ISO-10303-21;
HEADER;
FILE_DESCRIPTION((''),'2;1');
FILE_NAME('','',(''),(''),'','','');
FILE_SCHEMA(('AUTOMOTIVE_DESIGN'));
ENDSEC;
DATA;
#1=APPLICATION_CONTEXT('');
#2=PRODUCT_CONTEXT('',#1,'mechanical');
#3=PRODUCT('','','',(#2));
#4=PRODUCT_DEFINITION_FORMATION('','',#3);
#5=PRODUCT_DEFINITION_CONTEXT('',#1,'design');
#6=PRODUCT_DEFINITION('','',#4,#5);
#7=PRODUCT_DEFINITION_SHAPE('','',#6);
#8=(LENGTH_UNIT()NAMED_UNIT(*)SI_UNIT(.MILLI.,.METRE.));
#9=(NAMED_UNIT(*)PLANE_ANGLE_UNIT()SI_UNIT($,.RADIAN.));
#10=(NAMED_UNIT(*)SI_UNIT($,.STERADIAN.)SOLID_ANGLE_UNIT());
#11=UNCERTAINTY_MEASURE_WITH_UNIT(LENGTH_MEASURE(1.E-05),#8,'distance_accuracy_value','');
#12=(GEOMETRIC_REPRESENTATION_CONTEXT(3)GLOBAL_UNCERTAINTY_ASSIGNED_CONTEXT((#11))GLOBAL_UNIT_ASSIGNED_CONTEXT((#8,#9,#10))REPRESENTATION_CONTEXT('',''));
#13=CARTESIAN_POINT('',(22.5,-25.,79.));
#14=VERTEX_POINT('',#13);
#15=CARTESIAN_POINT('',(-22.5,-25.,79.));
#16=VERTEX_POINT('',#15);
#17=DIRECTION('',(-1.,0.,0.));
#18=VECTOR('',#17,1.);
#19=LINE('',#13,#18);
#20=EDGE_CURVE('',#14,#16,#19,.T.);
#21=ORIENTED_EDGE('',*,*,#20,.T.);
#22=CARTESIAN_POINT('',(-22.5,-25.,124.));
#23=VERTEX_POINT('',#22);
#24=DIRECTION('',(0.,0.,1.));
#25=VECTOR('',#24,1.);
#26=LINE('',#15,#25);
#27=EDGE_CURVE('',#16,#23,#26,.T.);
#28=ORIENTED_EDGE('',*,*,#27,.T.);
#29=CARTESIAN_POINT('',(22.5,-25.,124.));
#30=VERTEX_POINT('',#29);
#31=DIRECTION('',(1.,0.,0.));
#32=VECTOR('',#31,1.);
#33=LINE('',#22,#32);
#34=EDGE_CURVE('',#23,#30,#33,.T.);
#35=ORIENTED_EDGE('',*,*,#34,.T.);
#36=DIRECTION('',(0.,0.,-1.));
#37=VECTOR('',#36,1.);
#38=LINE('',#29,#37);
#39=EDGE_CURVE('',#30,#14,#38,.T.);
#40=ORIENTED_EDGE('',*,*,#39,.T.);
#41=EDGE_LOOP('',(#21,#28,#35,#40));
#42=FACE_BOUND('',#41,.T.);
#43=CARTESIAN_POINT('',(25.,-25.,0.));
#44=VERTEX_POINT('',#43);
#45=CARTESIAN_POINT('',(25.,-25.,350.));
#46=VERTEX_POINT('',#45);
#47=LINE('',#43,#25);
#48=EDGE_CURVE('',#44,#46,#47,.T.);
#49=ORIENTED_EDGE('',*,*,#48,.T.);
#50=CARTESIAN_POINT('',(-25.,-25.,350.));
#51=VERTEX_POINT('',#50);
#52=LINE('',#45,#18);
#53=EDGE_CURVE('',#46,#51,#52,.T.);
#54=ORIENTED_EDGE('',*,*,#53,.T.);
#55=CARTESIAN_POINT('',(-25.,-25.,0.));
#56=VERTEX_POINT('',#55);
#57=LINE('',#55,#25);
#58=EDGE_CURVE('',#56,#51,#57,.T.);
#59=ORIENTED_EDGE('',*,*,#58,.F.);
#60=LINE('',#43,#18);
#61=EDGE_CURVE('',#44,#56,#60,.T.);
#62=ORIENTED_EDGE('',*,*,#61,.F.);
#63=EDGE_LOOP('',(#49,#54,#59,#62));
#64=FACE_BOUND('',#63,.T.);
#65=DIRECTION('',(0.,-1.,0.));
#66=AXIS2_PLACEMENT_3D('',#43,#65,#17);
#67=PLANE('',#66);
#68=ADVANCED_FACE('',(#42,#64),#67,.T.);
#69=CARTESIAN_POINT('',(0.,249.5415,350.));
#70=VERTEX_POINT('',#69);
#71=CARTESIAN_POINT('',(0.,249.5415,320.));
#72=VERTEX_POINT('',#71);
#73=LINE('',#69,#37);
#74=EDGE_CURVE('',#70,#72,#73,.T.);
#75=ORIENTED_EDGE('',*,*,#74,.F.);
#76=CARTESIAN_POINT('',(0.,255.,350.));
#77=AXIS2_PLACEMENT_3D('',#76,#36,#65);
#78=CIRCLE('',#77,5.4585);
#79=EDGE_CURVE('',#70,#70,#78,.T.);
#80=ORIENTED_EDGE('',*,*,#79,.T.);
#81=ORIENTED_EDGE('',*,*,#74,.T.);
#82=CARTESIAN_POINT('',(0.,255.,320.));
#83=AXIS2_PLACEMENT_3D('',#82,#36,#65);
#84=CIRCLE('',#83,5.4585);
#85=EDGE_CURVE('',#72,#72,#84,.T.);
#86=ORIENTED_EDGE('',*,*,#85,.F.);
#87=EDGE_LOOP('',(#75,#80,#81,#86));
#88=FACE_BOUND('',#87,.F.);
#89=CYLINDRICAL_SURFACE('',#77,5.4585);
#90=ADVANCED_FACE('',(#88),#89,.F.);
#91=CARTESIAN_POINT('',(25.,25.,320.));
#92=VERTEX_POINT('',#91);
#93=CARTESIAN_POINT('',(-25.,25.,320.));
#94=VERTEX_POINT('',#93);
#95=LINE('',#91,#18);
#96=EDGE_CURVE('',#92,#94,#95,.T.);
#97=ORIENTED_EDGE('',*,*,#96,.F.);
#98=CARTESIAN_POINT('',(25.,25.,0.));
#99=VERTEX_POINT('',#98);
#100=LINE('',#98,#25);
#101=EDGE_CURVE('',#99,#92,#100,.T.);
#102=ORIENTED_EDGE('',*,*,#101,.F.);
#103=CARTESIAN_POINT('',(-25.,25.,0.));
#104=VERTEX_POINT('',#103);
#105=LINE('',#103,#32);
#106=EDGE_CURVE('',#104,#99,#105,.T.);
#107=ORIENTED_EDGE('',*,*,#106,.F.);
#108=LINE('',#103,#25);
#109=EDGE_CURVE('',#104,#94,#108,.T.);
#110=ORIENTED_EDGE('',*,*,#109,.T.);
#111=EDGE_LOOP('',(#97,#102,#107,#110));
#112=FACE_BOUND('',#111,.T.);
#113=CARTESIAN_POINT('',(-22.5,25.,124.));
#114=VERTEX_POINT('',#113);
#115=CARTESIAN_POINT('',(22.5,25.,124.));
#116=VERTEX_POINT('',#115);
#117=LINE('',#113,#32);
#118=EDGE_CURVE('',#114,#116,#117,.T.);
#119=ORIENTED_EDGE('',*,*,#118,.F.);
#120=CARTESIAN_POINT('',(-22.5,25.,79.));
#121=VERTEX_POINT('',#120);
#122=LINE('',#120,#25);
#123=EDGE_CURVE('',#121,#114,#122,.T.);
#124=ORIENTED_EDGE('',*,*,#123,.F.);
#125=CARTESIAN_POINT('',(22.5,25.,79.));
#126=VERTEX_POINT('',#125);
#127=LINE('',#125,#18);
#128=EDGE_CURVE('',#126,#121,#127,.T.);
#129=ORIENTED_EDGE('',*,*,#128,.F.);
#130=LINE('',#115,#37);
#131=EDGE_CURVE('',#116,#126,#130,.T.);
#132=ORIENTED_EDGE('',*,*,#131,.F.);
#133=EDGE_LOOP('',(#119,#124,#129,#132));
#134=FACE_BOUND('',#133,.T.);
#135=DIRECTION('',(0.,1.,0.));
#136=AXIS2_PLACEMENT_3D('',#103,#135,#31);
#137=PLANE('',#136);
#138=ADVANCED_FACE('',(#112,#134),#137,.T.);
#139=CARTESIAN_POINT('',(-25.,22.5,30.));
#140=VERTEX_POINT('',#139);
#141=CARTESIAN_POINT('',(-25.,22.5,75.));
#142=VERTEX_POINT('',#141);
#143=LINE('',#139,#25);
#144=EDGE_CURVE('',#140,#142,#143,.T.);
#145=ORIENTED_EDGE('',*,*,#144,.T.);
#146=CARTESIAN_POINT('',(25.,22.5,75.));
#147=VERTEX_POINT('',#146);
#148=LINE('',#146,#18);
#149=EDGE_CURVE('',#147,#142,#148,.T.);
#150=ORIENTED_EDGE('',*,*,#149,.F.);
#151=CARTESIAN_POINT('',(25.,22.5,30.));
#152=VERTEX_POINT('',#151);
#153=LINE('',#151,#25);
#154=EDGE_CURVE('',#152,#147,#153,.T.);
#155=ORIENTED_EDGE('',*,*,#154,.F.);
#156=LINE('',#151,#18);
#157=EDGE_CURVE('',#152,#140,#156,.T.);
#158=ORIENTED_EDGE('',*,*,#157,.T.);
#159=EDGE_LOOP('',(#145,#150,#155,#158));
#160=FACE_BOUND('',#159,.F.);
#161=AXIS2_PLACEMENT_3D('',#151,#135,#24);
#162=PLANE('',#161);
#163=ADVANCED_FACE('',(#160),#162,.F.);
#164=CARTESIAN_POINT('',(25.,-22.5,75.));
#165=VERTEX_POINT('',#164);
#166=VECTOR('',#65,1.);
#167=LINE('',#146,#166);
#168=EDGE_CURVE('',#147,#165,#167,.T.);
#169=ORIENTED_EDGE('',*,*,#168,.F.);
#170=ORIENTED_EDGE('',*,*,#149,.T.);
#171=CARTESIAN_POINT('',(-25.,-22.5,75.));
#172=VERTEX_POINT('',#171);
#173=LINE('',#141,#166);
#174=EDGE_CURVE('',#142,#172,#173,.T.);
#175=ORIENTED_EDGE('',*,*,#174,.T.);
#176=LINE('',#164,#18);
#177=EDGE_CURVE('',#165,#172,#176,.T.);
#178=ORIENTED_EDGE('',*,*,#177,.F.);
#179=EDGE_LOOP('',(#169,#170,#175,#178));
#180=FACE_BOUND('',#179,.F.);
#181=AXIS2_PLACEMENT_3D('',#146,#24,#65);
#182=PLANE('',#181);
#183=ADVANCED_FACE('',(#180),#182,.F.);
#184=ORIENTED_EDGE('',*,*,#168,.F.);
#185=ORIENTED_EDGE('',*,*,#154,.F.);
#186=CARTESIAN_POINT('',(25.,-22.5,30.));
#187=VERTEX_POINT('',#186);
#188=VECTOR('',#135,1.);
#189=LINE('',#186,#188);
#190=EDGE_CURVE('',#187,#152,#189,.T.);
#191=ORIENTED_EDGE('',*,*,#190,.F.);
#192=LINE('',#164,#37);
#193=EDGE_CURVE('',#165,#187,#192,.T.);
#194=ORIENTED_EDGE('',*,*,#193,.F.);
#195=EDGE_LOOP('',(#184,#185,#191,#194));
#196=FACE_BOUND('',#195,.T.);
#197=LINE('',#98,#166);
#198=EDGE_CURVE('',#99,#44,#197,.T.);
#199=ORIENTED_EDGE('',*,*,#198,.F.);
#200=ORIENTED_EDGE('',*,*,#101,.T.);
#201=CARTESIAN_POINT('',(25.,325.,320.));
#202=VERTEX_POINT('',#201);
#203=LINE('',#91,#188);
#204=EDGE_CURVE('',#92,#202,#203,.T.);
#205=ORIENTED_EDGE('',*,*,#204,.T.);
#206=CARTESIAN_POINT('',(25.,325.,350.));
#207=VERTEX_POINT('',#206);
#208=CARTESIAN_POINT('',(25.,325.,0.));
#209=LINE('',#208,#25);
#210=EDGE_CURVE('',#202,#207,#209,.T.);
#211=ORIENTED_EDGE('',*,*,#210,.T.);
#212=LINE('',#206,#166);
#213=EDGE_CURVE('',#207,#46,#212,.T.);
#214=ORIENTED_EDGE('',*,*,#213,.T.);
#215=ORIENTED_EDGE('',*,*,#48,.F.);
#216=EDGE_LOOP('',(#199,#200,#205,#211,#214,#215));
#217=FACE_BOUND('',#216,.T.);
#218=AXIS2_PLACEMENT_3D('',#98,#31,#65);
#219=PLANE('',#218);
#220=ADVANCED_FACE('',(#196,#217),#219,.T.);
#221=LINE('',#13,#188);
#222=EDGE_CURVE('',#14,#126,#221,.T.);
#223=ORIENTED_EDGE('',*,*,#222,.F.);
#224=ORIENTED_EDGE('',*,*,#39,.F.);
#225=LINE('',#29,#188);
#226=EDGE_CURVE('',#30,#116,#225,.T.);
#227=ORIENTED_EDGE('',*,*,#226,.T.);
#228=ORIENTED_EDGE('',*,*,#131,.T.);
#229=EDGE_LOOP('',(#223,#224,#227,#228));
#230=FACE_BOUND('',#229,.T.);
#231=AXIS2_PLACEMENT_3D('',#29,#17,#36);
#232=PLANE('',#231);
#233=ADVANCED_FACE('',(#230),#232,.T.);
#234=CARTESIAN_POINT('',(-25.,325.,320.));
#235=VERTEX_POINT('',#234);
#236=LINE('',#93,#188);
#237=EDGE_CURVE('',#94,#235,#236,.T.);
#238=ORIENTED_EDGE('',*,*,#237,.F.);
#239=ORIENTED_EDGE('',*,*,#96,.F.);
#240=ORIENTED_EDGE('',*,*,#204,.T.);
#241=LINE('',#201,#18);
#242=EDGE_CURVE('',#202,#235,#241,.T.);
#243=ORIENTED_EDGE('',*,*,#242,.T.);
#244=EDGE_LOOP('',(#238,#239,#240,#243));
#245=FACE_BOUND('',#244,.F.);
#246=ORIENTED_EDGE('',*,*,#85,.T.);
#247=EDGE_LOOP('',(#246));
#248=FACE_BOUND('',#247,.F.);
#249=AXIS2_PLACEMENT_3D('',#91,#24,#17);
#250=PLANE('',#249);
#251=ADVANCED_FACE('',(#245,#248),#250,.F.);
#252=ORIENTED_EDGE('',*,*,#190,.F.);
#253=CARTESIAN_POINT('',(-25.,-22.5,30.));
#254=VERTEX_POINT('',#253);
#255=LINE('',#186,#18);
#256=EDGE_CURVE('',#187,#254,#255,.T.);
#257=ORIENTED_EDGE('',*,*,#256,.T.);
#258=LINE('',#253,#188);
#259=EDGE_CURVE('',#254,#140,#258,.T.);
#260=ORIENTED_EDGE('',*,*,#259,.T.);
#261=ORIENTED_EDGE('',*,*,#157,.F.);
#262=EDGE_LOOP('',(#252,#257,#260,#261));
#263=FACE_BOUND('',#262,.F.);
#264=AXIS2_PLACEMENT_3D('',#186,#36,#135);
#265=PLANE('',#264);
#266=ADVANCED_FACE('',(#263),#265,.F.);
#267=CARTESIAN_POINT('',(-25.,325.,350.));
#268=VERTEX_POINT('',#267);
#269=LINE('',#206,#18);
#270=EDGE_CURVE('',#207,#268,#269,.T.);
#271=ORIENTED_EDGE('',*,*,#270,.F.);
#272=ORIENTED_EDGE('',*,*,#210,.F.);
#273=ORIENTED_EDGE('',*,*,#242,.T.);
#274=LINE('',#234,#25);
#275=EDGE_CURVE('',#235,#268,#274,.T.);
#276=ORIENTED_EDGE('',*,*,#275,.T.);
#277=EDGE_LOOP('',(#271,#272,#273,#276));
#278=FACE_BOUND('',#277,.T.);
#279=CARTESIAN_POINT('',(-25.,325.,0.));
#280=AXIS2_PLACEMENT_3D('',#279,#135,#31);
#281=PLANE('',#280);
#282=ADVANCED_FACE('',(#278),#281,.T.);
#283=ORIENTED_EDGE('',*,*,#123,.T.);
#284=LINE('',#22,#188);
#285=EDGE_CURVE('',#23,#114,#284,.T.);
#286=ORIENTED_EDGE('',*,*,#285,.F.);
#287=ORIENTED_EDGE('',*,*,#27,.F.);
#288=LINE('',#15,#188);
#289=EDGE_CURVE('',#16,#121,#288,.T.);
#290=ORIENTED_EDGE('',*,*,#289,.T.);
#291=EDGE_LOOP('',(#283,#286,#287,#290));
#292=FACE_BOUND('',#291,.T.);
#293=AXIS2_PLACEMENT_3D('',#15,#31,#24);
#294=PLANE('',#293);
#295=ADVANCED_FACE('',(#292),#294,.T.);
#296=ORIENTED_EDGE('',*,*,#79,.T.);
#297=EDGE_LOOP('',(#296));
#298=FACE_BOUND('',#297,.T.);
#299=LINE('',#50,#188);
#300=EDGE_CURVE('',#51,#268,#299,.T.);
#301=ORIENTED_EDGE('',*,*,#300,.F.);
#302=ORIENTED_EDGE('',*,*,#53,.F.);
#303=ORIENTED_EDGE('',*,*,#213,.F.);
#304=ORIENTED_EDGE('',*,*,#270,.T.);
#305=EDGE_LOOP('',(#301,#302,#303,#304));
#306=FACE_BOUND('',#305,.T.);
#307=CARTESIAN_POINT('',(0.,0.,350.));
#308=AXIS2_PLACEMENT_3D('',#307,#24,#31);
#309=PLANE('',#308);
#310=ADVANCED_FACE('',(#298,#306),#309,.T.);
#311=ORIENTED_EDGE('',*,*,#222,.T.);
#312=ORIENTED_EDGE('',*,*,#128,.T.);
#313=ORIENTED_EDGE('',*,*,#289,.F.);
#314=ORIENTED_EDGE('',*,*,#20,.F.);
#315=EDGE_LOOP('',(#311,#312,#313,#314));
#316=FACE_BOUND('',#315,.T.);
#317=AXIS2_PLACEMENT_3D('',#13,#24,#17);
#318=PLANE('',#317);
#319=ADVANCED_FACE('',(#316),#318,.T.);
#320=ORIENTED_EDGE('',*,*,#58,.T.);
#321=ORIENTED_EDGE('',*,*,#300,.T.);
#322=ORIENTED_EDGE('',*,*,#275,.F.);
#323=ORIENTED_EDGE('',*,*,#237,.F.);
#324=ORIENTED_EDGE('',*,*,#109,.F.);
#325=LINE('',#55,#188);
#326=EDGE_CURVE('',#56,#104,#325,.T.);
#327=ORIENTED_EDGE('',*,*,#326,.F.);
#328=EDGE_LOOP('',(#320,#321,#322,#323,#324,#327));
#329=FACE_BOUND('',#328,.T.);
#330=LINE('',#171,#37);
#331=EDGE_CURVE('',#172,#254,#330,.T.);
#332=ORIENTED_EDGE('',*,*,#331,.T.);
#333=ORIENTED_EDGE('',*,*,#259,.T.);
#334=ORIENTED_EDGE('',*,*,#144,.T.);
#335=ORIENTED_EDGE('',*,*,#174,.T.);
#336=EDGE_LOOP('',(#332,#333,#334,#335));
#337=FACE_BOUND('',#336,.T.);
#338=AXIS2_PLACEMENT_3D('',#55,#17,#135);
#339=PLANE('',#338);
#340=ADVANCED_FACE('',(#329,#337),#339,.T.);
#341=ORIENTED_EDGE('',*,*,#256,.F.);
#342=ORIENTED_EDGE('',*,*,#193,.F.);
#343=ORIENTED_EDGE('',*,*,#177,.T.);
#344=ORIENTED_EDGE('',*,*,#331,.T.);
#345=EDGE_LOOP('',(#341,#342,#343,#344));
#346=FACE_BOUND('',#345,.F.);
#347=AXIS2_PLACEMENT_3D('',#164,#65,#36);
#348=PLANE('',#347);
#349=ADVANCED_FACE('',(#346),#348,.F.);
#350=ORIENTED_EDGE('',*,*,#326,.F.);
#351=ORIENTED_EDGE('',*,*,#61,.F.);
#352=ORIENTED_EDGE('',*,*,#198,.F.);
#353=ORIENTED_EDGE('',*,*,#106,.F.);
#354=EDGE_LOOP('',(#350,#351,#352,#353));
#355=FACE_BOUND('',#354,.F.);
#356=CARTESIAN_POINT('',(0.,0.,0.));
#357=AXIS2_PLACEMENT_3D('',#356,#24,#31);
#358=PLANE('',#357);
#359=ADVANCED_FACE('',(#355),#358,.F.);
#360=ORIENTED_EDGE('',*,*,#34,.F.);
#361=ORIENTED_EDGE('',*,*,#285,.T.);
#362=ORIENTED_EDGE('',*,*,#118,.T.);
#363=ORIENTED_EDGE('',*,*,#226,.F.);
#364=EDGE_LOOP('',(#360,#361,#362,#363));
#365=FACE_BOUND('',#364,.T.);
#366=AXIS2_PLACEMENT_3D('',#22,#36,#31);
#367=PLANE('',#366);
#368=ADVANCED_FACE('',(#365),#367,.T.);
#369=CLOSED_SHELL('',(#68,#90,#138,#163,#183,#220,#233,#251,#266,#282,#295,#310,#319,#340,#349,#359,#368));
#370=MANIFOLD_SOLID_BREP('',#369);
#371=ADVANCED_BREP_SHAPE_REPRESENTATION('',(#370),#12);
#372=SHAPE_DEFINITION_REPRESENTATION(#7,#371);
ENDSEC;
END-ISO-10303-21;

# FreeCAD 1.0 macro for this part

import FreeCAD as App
import Part
import Sketcher
Q = App.Units.Quantity

doc = App.newDocument("Part")
body = doc.addObject("PartDesign::Body", "Body")

# Sketch on XY plane
sketch1 = body.newObject("Sketcher::SketchObject", "Sketch")
sketch1.AttachmentSupport = (doc.getObject("XY_Plane"), [""])
sketch1.MapMode = "FlatFace"
sketch1.addGeometry(Part.LineSegment(App.Vector(25, 25, 0), App.Vector(-25, 25, 0)), False)
sketch1.addGeometry(Part.LineSegment(App.Vector(-25, 25, 0), App.Vector(-25, -25, 0)), False)
sketch1.addGeometry(Part.LineSegment(App.Vector(-25, -25, 0), App.Vector(25, -25, 0)), False)
sketch1.addGeometry(Part.LineSegment(App.Vector(25, -25, 0), App.Vector(25, 25, 0)), False)
sketch1.addConstraint(Sketcher.Constraint("Coincident", 0, 2, 1, 1))
sketch1.addConstraint(Sketcher.Constraint("Coincident", 1, 2, 2, 1))
sketch1.addConstraint(Sketcher.Constraint("Coincident", 2, 2, 3, 1))
sketch1.addConstraint(Sketcher.Constraint("Coincident", 3, 2, 0, 1))
sketch1.addConstraint(Sketcher.Constraint("Horizontal", 0))
sketch1.addConstraint(Sketcher.Constraint("Vertical", 1))
sketch1.addConstraint(Sketcher.Constraint("Horizontal", 2))
sketch1.addConstraint(Sketcher.Constraint("Vertical", 3))
sketch1.addConstraint(Sketcher.Constraint("Symmetric", 0, 2, 2, 2, -1, 1))
sketch1.addConstraint(Sketcher.Constraint("Equal", 2, 1))
sketch1.addConstraint(Sketcher.Constraint("DistanceX", 0, 2, 0, 1, Q("50 mm")))
pad1 = body.newObject("PartDesign::Pad", "Pad")
pad1.Profile = sketch1
pad1.Length = 350

# Sketch on XZ plane
sketch2 = body.newObject("Sketcher::SketchObject", "Sketch001")
sketch2.AttachmentSupport = (doc.getObject("XZ_Plane"), [""])
sketch2.MapMode = "FlatFace"
sketch2.AttachmentOffset = App.Placement(App.Vector(0, 0, -25), App.Rotation())
sketch2.addGeometry(Part.LineSegment(App.Vector(-25, 350, 0), App.Vector(25, 350, 0)), False)
sketch2.addGeometry(Part.LineSegment(App.Vector(25, 350, 0), App.Vector(25, 320, 0)), False)
sketch2.addGeometry(Part.LineSegment(App.Vector(25, 320, 0), App.Vector(-25, 320, 0)), False)
sketch2.addGeometry(Part.LineSegment(App.Vector(-25, 320, 0), App.Vector(-25, 350, 0)), False)
sketch2.addConstraint(Sketcher.Constraint("Coincident", 0, 2, 1, 1))
sketch2.addConstraint(Sketcher.Constraint("Coincident", 1, 2, 2, 1))
sketch2.addConstraint(Sketcher.Constraint("Coincident", 2, 2, 3, 1))
sketch2.addConstraint(Sketcher.Constraint("Coincident", 3, 2, 0, 1))
sketch2.addConstraint(Sketcher.Constraint("Horizontal", 0))
sketch2.addConstraint(Sketcher.Constraint("Vertical", 1))
sketch2.addConstraint(Sketcher.Constraint("Horizontal", 2))
sketch2.addConstraint(Sketcher.Constraint("Vertical", 3))
sketch2.addConstraint(Sketcher.Constraint("DistanceY", 1, 2, 1, 1, Q("30 mm")))
sketch2.addConstraint(Sketcher.Constraint("DistanceX", 0, 1, 0, 2, Q("50 mm")))
sketch2.addConstraint(Sketcher.Constraint("DistanceX", -1, 1, 0, 2, Q("25 mm")))
sketch2.addConstraint(Sketcher.Constraint("DistanceY", -1, 1, 0, 2, Q("350 mm")))
pad2 = body.newObject("PartDesign::Pad", "Pad001")
pad2.Profile = sketch2
pad2.Length = 300
pad2.Reversed = True

# Sketch on XY plane
sketch3 = body.newObject("Sketcher::SketchObject", "Sketch002")
sketch3.AttachmentSupport = (doc.getObject("XY_Plane"), [""])
sketch3.MapMode = "FlatFace"
sketch3.AttachmentOffset = App.Placement(App.Vector(0, 0, 350), App.Rotation())
sketch3.addGeometry(Part.Circle(App.Vector(0, 255, 0), App.Vector(0, 0, 1), 5), False)
sketch3.addConstraint(Sketcher.Constraint("PointOnObject", 0, 3, -2))
sketch3.addConstraint(Sketcher.Constraint("Diameter", 0, Q("10.917 mm")))
sketch3.addConstraint(Sketcher.Constraint("DistanceY", -1, 1, 0, 3, Q("255 mm")))
doc.recompute()
hole = body.newObject("PartDesign::Hole", "Hole")
hole.Profile = sketch3
hole.ThreadType = "None"
hole.Diameter = 10.917
hole.DepthType = "ThroughAll"

# Sketch on YZ plane
sketch4 = body.newObject("Sketcher::SketchObject", "Sketch003")
sketch4.AttachmentSupport = (doc.getObject("YZ_Plane"), [""])
sketch4.MapMode = "FlatFace"
sketch4.AttachmentOffset = App.Placement(App.Vector(0, 0, 25), App.Rotation())
sketch4.addGeometry(Part.LineSegment(App.Vector(22, 75, 0), App.Vector(-22, 75, 0)), False)
sketch4.addGeometry(Part.LineSegment(App.Vector(-22, 75, 0), App.Vector(-22, 30, 0)), False)
sketch4.addGeometry(Part.LineSegment(App.Vector(-22, 30, 0), App.Vector(22, 30, 0)), False)
sketch4.addGeometry(Part.LineSegment(App.Vector(22, 30, 0), App.Vector(22, 75, 0)), False)
sketch4.addConstraint(Sketcher.Constraint("Coincident", 0, 2, 1, 1))
sketch4.addConstraint(Sketcher.Constraint("Coincident", 1, 2, 2, 1))
sketch4.addConstraint(Sketcher.Constraint("Coincident", 2, 2, 3, 1))
sketch4.addConstraint(Sketcher.Constraint("Coincident", 3, 2, 0, 1))
sketch4.addConstraint(Sketcher.Constraint("Horizontal", 0))
sketch4.addConstraint(Sketcher.Constraint("Vertical", 1))
sketch4.addConstraint(Sketcher.Constraint("Horizontal", 2))
sketch4.addConstraint(Sketcher.Constraint("Vertical", 3))
sketch4.addConstraint(Sketcher.Constraint("Equal", 2, 1))
sketch4.addConstraint(Sketcher.Constraint("DistanceX", 0, 2, 0, 1, Q("45 mm")))
sketch4.addConstraint(Sketcher.Constraint("DistanceY", -1, 1, 1, 2, Q("30 mm")))
sketch4.addConstraint(Sketcher.Constraint("DistanceX", 0, 2, -1, 1, Q("22.5 mm")))
pocket1 = body.newObject("PartDesign::Pocket", "Pocket")
pocket1.Profile = sketch4
pocket1.Length = 50

# Sketch on XZ plane
sketch5 = body.newObject("Sketcher::SketchObject", "Sketch004")
sketch5.AttachmentSupport = (doc.getObject("XZ_Plane"), [""])
sketch5.MapMode = "FlatFace"
sketch5.AttachmentOffset = App.Placement(App.Vector(0, 0, 25), App.Rotation())
sketch5.addGeometry(Part.Circle(App.Vector(0, 102, 0), App.Vector(0, 0, 1), 6), False)
sketch5.addConstraint(Sketcher.Constraint("PointOnObject", 0, 3, -2))
sketch5.addConstraint(Sketcher.Constraint("Diameter", 0, Q("11.835 mm")))
sketch5.addConstraint(Sketcher.Constraint("DistanceY", -1, 1, 0, 3, Q("102 mm")))
doc.recompute()
hole2 = body.newObject("PartDesign::Hole", "Hole001")
hole2.Profile = sketch5
hole2.ThreadType = "None"
hole2.Diameter = 11.835
hole2.DepthType = "ThroughAll"

# Sketch on XZ plane
sketch6 = body.newObject("Sketcher::SketchObject", "Sketch005")
sketch6.AttachmentSupport = (doc.getObject("XZ_Plane"), [""])
sketch6.MapMode = "FlatFace"
sketch6.AttachmentOffset = App.Placement(App.Vector(0, 0, 25), App.Rotation())
sketch6.addGeometry(Part.LineSegment(App.Vector(22, 124, 0), App.Vector(-22, 124, 0)), False)
sketch6.addGeometry(Part.LineSegment(App.Vector(-22, 124, 0), App.Vector(-22, 79, 0)), False)
sketch6.addGeometry(Part.LineSegment(App.Vector(-22, 79, 0), App.Vector(22, 79, 0)), False)
sketch6.addGeometry(Part.LineSegment(App.Vector(22, 79, 0), App.Vector(22, 124, 0)), False)
sketch6.addConstraint(Sketcher.Constraint("Coincident", 0, 2, 1, 1))
sketch6.addConstraint(Sketcher.Constraint("Coincident", 1, 2, 2, 1))
sketch6.addConstraint(Sketcher.Constraint("Coincident", 2, 2, 3, 1))
sketch6.addConstraint(Sketcher.Constraint("Coincident", 3, 2, 0, 1))
sketch6.addConstraint(Sketcher.Constraint("Horizontal", 0))
sketch6.addConstraint(Sketcher.Constraint("Vertical", 1))
sketch6.addConstraint(Sketcher.Constraint("Horizontal", 2))
sketch6.addConstraint(Sketcher.Constraint("Vertical", 3))
sketch6.addConstraint(Sketcher.Constraint("Equal", 2, 1))
sketch6.addConstraint(Sketcher.Constraint("DistanceX", 0, 2, 0, 1, Q("45 mm")))
sketch6.addConstraint(Sketcher.Constraint("DistanceY", -1, 1, 1, 2, Q("79 mm")))
sketch6.addConstraint(Sketcher.Constraint("DistanceX", 0, 2, -1, 1, Q("22.5 mm")))
pocket2 = body.newObject("PartDesign::Pocket", "Pocket001")
pocket2.Profile = sketch6
pocket2.Length = 50

# Sketch on YZ plane
sketch7 = body.newObject("Sketcher::SketchObject", "Sketch006")
sketch7.AttachmentSupport = (doc.getObject("YZ_Plane"), [""])
sketch7.MapMode = "FlatFace"
sketch7.AttachmentOffset = App.Placement(App.Vector(0, 0, 25), App.Rotation())
sketch7.addGeometry(Part.Circle(App.Vector(0, 52, 0), App.Vector(0, 0, 1), 6), False)
sketch7.addConstraint(Sketcher.Constraint("PointOnObject", 0, 3, -2))
sketch7.addConstraint(Sketcher.Constraint("Diameter", 0, Q("11.835 mm")))
sketch7.addConstraint(Sketcher.Constraint("DistanceY", -1, 1, 0, 3, Q("52.5 mm")))
doc.recompute()
hole3 = body.newObject("PartDesign::Hole", "Hole002")
hole3.Profile = sketch7
hole3.ThreadType = "None"
hole3.Diameter = 11.835
hole3.DepthType = "ThroughAll"

doc.recompute()
